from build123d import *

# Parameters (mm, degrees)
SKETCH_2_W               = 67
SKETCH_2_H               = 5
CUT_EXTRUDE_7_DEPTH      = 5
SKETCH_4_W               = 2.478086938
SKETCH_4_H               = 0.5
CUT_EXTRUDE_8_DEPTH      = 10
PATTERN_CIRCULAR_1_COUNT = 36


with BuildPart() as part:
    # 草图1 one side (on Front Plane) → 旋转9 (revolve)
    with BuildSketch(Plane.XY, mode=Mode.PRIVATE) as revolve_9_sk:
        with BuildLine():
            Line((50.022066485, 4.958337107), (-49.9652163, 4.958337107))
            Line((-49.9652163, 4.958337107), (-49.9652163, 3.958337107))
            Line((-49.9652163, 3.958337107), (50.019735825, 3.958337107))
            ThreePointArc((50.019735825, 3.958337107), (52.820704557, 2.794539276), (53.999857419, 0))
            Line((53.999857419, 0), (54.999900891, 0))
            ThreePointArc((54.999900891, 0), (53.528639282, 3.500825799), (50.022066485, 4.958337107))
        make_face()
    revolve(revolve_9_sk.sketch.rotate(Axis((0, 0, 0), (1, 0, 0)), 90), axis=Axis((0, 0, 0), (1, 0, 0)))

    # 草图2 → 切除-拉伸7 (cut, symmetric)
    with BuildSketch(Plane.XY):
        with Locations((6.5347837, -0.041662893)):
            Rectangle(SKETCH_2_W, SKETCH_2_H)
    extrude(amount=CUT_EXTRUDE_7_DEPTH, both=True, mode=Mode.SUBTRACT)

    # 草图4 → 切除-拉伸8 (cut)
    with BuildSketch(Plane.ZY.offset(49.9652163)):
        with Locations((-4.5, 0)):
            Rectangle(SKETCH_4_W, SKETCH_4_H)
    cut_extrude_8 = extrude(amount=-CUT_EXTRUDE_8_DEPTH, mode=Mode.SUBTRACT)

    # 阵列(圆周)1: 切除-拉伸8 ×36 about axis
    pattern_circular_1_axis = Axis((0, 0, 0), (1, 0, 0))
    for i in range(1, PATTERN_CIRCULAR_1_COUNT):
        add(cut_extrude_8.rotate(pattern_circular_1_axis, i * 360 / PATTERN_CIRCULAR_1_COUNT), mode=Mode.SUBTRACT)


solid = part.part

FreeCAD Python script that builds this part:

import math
import FreeCAD as App
import Part
import Sketcher
from FreeCAD import Vector

doc = App.newDocument("Part")
body = doc.addObject("PartDesign::Body", "Body")

sketch1 = body.newObject("Sketcher::SketchObject", "Sketch")
sketch1.AttachmentSupport = (doc.getObject("XY_Plane"), [""])
sketch1.MapMode = "FlatFace"
sketch1.addGeometry([
    Part.LineSegment(Vector(50.022066, 4.958337, 0), Vector(-49.965216, 4.958337, 0)),
    Part.LineSegment(Vector(-49.965216, 4.958337, 0), Vector(-49.965216, 3.958337, 0)),
    Part.LineSegment(Vector(-49.965216, 3.958337, 0), Vector(50.019736, 3.958337, 0)),
    Part.ArcOfCircle(Part.Circle(Vector(49.99999, -0.041699, 0), Vector(0, 0, 1), 4.000085), math.radians(0.597293), math.radians(89.717165)),
    Part.LineSegment(Vector(53.999857, 0, 0), Vector(54.999901, 0, 0)),
    Part.ArcOfCircle(Part.Circle(Vector(49.99999, -0.041699, 0), Vector(0, 0, 1), 5.000085), math.radians(0.477833), math.radians(89.747024)),
], False)
sketch1.addConstraint([
    Sketcher.Constraint("Coincident", 0, 2, 1, 1),
    Sketcher.Constraint("Coincident", 1, 2, 2, 1),
    Sketcher.Constraint("Coincident", 2, 2, 3, 2),
    Sketcher.Constraint("Coincident", 3, 1, 4, 1),
    Sketcher.Constraint("Coincident", 4, 2, 5, 1),
    Sketcher.Constraint("Coincident", 5, 2, 0, 1),
    Sketcher.Constraint("Horizontal", 0),
    Sketcher.Constraint("Vertical", 1),
    Sketcher.Constraint("Horizontal", 2),
    Sketcher.Constraint("Horizontal", 4),
    Sketcher.Constraint("Coincident", 5, 3, 3, 3),
    Sketcher.Constraint("PointOnObject", 3, 1, -1),
    Sketcher.Constraint("DistanceY", 1, 2, 1, 1, 1.0),
    Sketcher.Constraint("Radius", 3, 4.000085),
    Sketcher.Constraint("Radius", 5, 5.000085),
    Sketcher.Constraint("DistanceY", 3, 3, -1, 1, 0.041699),
    Sketcher.Constraint("DistanceX", -1, 1, 4, 2, 54.999901),
    Sketcher.Constraint("DistanceX", 0, 2, 0, 1, 99.987283),
    Sketcher.Constraint("DistanceX", 2, 1, 2, 2, 99.984952),
])
revolution = body.newObject("PartDesign::Revolution", "Revolution")
revolution.Profile = sketch1
revolution.ReferenceAxis = (sketch1, ["H_Axis"])
revolution.Angle = 360

sketch2 = body.newObject("Sketcher::SketchObject", "Sketch001")
sketch2.AttachmentSupport = (doc.getObject("XY_Plane"), [""])
sketch2.MapMode = "FlatFace"
sketch2.addGeometry([
    Part.LineSegment(Vector(-27, 2, 0), Vector(-27, -3, 0)),
    Part.LineSegment(Vector(-27, -3, 0), Vector(40, -3, 0)),
    Part.LineSegment(Vector(40, -3, 0), Vector(40, 2, 0)),
    Part.LineSegment(Vector(40, 2, 0), Vector(-27, 2, 0)),
], False)
sketch2.addConstraint([
    Sketcher.Constraint("Coincident", 0, 2, 1, 1),
    Sketcher.Constraint("Coincident", 1, 2, 2, 1),
    Sketcher.Constraint("Coincident", 2, 2, 3, 1),
    Sketcher.Constraint("Coincident", 3, 2, 0, 1),
    Sketcher.Constraint("Vertical", 0),
    Sketcher.Constraint("Horizontal", 1),
    Sketcher.Constraint("Vertical", 2),
    Sketcher.Constraint("Horizontal", 3),
    Sketcher.Constraint("DistanceX", 1, 1, 1, 2, 67.0),
    Sketcher.Constraint("DistanceY", 0, 2, 0, 1, 5.0),
    Sketcher.Constraint("DistanceX", 0, 2, -1, 1, 26.965216),
    Sketcher.Constraint("DistanceY", 0, 2, -1, 1, 2.541663),
])
pocket1 = body.newObject("PartDesign::Pocket", "Pocket")
pocket1.Profile = sketch2
pocket1.Length = 10
pocket1.Midplane = True

sketch3 = body.newObject("Sketcher::SketchObject", "Sketch002")
sketch3.AttachmentSupport = (doc.getObject("YZ_Plane"), [""])
sketch3.MapMode = "FlatFace"
sketch3.AttachmentOffset = App.Placement(Vector(0, 0, -49.965216), App.Rotation())
sketch3.addGeometry([
    Part.LineSegment(Vector(0.2, -5.7, 0), Vector(-0.2, -5.7, 0)),
    Part.LineSegment(Vector(-0.2, -5.7, 0), Vector(-0.2, -3.3, 0)),
    Part.LineSegment(Vector(-0.2, -3.3, 0), Vector(0.2, -3.3, 0)),
    Part.LineSegment(Vector(0.2, -3.3, 0), Vector(0.2, -5.7, 0)),
], False)
sketch3.addConstraint([
    Sketcher.Constraint("Coincident", 0, 2, 1, 1),
    Sketcher.Constraint("Coincident", 1, 2, 2, 1),
    Sketcher.Constraint("Coincident", 2, 2, 3, 1),
    Sketcher.Constraint("Coincident", 3, 2, 0, 1),
    Sketcher.Constraint("Horizontal", 0),
    Sketcher.Constraint("Vertical", 1),
    Sketcher.Constraint("Horizontal", 2),
    Sketcher.Constraint("Vertical", 3),
    Sketcher.Constraint("DistanceX", 0, 2, 0, 1, 0.5),
    Sketcher.Constraint("DistanceX", 0, 2, -1, 1, 0.25),
    Sketcher.Constraint("DistanceY", 1, 1, 1, 2, 2.478087),
    Sketcher.Constraint("DistanceY", 0, 2, -1, 1, 5.739043),
])
pocket2 = body.newObject("PartDesign::Pocket", "Pocket001")
pocket2.Profile = sketch3
pocket2.Length = 10
pocket2.Reversed = True
doc.recompute()

polarpattern = body.newObject("PartDesign::PolarPattern", "PolarPattern")
polarpattern.Originals = [pocket2]
polarpattern.Axis = (doc.getObject("X_Axis"), [""])
polarpattern.Angle = 360
polarpattern.Occurrences = 36
body.Tip = polarpattern

doc.recompute()
